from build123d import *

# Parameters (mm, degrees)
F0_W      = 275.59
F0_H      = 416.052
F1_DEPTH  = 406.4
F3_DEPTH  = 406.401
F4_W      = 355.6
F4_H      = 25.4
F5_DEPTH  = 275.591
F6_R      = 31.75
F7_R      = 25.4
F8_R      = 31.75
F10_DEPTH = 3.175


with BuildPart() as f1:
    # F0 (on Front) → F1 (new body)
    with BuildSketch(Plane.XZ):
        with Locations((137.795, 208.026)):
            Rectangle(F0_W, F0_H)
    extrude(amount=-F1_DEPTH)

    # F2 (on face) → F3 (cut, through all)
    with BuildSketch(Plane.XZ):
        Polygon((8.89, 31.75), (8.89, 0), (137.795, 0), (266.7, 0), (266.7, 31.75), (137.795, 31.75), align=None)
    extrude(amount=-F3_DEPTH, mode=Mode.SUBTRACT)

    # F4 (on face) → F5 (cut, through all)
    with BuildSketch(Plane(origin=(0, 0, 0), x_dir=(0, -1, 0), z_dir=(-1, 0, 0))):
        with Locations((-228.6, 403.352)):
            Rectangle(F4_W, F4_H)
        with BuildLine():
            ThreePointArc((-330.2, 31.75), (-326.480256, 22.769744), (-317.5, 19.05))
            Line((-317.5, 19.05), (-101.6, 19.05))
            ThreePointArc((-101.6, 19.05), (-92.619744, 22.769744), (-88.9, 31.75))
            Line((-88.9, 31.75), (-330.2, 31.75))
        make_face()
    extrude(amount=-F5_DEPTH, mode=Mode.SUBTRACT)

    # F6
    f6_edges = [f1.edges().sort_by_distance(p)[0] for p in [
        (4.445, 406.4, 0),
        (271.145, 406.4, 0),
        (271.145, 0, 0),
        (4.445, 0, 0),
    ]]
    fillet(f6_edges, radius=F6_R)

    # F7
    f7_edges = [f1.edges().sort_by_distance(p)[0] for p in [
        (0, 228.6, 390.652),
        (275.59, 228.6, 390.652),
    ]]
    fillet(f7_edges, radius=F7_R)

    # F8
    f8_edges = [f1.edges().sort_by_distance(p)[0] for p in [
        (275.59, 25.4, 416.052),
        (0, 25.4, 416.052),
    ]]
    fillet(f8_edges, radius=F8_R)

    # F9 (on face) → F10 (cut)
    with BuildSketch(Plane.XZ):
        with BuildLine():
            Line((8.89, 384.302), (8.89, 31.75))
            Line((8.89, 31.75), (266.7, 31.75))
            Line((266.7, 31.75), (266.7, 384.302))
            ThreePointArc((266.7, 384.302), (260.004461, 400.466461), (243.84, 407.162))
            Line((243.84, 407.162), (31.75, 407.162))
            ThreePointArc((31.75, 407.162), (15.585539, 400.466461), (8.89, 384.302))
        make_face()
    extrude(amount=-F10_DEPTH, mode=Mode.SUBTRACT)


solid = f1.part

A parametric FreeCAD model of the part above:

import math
import FreeCAD as App
import Part
import Sketcher
Q = App.Units.Quantity


def edges_at(feature, points):
    """Names of the edges that pass closest to the given points."""
    edges = feature.Shape.Edges
    near = lambda p: min(range(len(edges)), key=lambda i: edges[i].distToShape(Part.Vertex(*p))[0])
    return sorted({f"Edge{near(p) + 1}" for p in points})

doc = App.newDocument("Part")
body = doc.addObject("PartDesign::Body", "Body")

# Sketch on XZ plane
sketch1 = body.newObject("Sketcher::SketchObject", "Sketch")
sketch1.AttachmentSupport = (doc.getObject("XZ_Plane"), [""])
sketch1.MapMode = "FlatFace"
sketch1.addGeometry([
    Part.LineSegment(App.Vector(0, 416, 0), App.Vector(0, 0, 0)),
    Part.LineSegment(App.Vector(0, 0, 0), App.Vector(276, 0, 0)),
    Part.LineSegment(App.Vector(276, 0, 0), App.Vector(276, 416, 0)),
    Part.LineSegment(App.Vector(276, 416, 0), App.Vector(0, 416, 0)),
], False)
sketch1.addConstraint([
    Sketcher.Constraint("Coincident", 0, 2, 1, 1),
    Sketcher.Constraint("Coincident", 1, 2, 2, 1),
    Sketcher.Constraint("Coincident", 2, 2, 3, 1),
    Sketcher.Constraint("Coincident", 3, 2, 0, 1),
    Sketcher.Constraint("Vertical", 0),
    Sketcher.Constraint("Horizontal", 1),
    Sketcher.Constraint("Vertical", 2),
    Sketcher.Constraint("Horizontal", 3),
    Sketcher.Constraint("Coincident", 0, 2, -1, 1),
    Sketcher.Constraint("DistanceX", 1, 1, 1, 2, Q("10.85 in")),
    Sketcher.Constraint("DistanceY", 0, 2, 0, 1, Q("16.38 in")),
])
pad1 = body.newObject("PartDesign::Pad", "Pad")
pad1.Profile = sketch1
pad1.Length = Q("16 in")
pad1.Reversed = True

# Sketch on XZ plane
sketch2 = body.newObject("Sketcher::SketchObject", "Sketch001")
sketch2.AttachmentSupport = (doc.getObject("XZ_Plane"), [""])
sketch2.MapMode = "FlatFace"
sketch2.addGeometry([
    Part.LineSegment(App.Vector(9, 32, 0), App.Vector(9, 0, 0)),
    Part.LineSegment(App.Vector(9, 0, 0), App.Vector(267, 0, 0)),
    Part.LineSegment(App.Vector(267, 0, 0), App.Vector(267, 32, 0)),
    Part.LineSegment(App.Vector(267, 32, 0), App.Vector(9, 32, 0)),
], False)
sketch2.addConstraint([
    Sketcher.Constraint("Coincident", 0, 2, 1, 1),
    Sketcher.Constraint("Coincident", 1, 2, 2, 1),
    Sketcher.Constraint("Coincident", 2, 2, 3, 1),
    Sketcher.Constraint("Coincident", 3, 2, 0, 1),
    Sketcher.Constraint("Vertical", 0),
    Sketcher.Constraint("Horizontal", 1),
    Sketcher.Constraint("Vertical", 2),
    Sketcher.Constraint("Horizontal", 3),
    Sketcher.Constraint("PointOnObject", 0, 2, -1),
    Sketcher.Constraint("DistanceX", 1, 1, 1, 2, Q("10.15 in")),
    Sketcher.Constraint("DistanceY", 0, 2, 0, 1, Q("1.25 in")),
    Sketcher.Constraint("DistanceX", -1, 1, 1, 2, Q("10.5 in")),
])
pocket1 = body.newObject("PartDesign::Pocket", "Pocket")
pocket1.Profile = sketch2
pocket1.Type = "ThroughAll"

# Sketch on YZ plane
sketch3 = body.newObject("Sketcher::SketchObject", "Sketch002")
sketch3.AttachmentSupport = (doc.getObject("YZ_Plane"), [""])
sketch3.MapMode = "FlatFace"
sketch3.addGeometry([
    Part.LineSegment(App.Vector(406, 416, 0), App.Vector(406, 391, 0)),  # 0
    Part.LineSegment(App.Vector(406, 391, 0), App.Vector(51, 391, 0)),  # 1
    Part.LineSegment(App.Vector(51, 391, 0), App.Vector(51, 416, 0)),  # 2
    Part.LineSegment(App.Vector(51, 416, 0), App.Vector(406, 416, 0)),  # 3
    Part.ArcOfCircle(Part.Circle(App.Vector(317, 32, 0), App.Vector(0, 0, 1), 13), math.radians(-90), math.radians(0)),  # 4
    Part.LineSegment(App.Vector(318, 19, 0), App.Vector(102, 19, 0)),  # 5
    Part.ArcOfCircle(Part.Circle(App.Vector(102, 32, 0), App.Vector(0, 0, 1), 13), math.radians(-180), math.radians(-90)),  # 6
    Part.LineSegment(App.Vector(89, 32, 0), App.Vector(330, 32, 0)),  # 7
], False)
sketch3.addConstraint([
    Sketcher.Constraint("Coincident", 0, 2, 1, 1),
    Sketcher.Constraint("Coincident", 1, 2, 2, 1),
    Sketcher.Constraint("Coincident", 2, 2, 3, 1),
    Sketcher.Constraint("Coincident", 3, 2, 0, 1),
    Sketcher.Constraint("Tangent", 4, 1, 5, 1),
    Sketcher.Constraint("Tangent", 5, 2, 6, 2),
    Sketcher.Constraint("Coincident", 6, 1, 7, 1),
    Sketcher.Constraint("Coincident", 7, 2, 4, 2),
    Sketcher.Constraint("Vertical", 0),
    Sketcher.Constraint("Horizontal", 1),
    Sketcher.Constraint("Vertical", 2),
    Sketcher.Constraint("Horizontal", 3),
    Sketcher.Constraint("Horizontal", 5),
    Sketcher.Constraint("Horizontal", 7),
    Sketcher.Constraint("Equal", 4, 6),
    Sketcher.Constraint("Horizontal", 4, 3, 6, 1),
    Sketcher.Constraint("Radius", 4, Q("0.5 in")),
    Sketcher.Constraint("DistanceX", 1, 2, 1, 1, Q("14 in")),
    Sketcher.Constraint("DistanceY", 0, 2, 0, 1, Q("1 in")),
    Sketcher.Constraint("DistanceX", 5, 2, 5, 1, Q("8.5 in")),
    Sketcher.Constraint("DistanceX", -1, 1, 6, 3, Q("4 in")),
    Sketcher.Constraint("DistanceX", -1, 1, 0, 2, Q("16 in")),
    Sketcher.Constraint("DistanceY", -1, 1, 4, 3, Q("1.25 in")),
    Sketcher.Constraint("DistanceY", -1, 1, 0, 2, Q("15.38 in")),
])
pocket2 = body.newObject("PartDesign::Pocket", "Pocket001")
pocket2.Profile = sketch3
pocket2.Type = "ThroughAll"
pocket2.Reversed = True
doc.recompute()

fillet = body.newObject("PartDesign::Fillet", "Fillet")
fillet.Base = (pocket2, edges_at(pocket2, [
    (4.445, 406.4, 0),
    (271.145, 406.4, 0),
    (271.145, 0, 0),
    (4.445, 0, 0),
]))
fillet.Radius = Q("1.25 in")
doc.recompute()

fillet2 = body.newObject("PartDesign::Fillet", "Fillet001")
fillet2.Base = (fillet, edges_at(fillet, [(0, 228.6, 390.652), (275.59, 228.6, 390.652)]))
fillet2.Radius = Q("1 in")
doc.recompute()

fillet3 = body.newObject("PartDesign::Fillet", "Fillet002")
fillet3.Base = (fillet2, edges_at(fillet2, [(275.59, 25.4, 416.052), (0, 25.4, 416.052)]))
fillet3.Radius = Q("1.25 in")

# Sketch on XZ plane
sketch4 = body.newObject("Sketcher::SketchObject", "Sketch003")
sketch4.AttachmentSupport = (doc.getObject("XZ_Plane"), [""])
sketch4.MapMode = "FlatFace"
sketch4.addGeometry([
    Part.LineSegment(App.Vector(9, 384, 0), App.Vector(9, 32, 0)),  # 0
    Part.LineSegment(App.Vector(9, 32, 0), App.Vector(267, 32, 0)),  # 1
    Part.LineSegment(App.Vector(267, 32, 0), App.Vector(267, 384, 0)),  # 2
    Part.ArcOfCircle(Part.Circle(App.Vector(244, 384, 0), App.Vector(0, 0, 1), 23), math.radians(0), math.radians(90)),  # 3
    Part.LineSegment(App.Vector(244, 407, 0), App.Vector(32, 407, 0)),  # 4
    Part.ArcOfCircle(Part.Circle(App.Vector(32, 384, 0), App.Vector(0, 0, 1), 23), math.radians(90), math.radians(180)),  # 5
], False)
sketch4.addConstraint([
    Sketcher.Constraint("Coincident", 0, 2, 1, 1),
    Sketcher.Constraint("Coincident", 1, 2, 2, 1),
    Sketcher.Constraint("Tangent", 2, 2, 3, 1),
    Sketcher.Constraint("Tangent", 3, 2, 4, 1),
    Sketcher.Constraint("Tangent", 4, 2, 5, 1),
    Sketcher.Constraint("Tangent", 5, 2, 0, 1),
    Sketcher.Constraint("Vertical", 0),
    Sketcher.Constraint("Horizontal", 1),
    Sketcher.Constraint("Vertical", 2),
    Sketcher.Constraint("Horizontal", 4),
    Sketcher.Constraint("Equal", 3, 5),
    Sketcher.Constraint("Radius", 3, Q("0.9 in")),
    Sketcher.Constraint("DistanceX", 1, 1, 1, 2, Q("10.15 in")),
    Sketcher.Constraint("DistanceY", 0, 2, 0, 1, Q("13.88 in")),
    Sketcher.Constraint("DistanceX", -1, 1, 3, 3, Q("9.6 in")),
    Sketcher.Constraint("DistanceY", -1, 1, 3, 3, Q("15.13 in")),
])
pocket3 = body.newObject("PartDesign::Pocket", "Pocket002")
pocket3.Profile = sketch4
pocket3.Length = Q("0.125 in")

doc.recompute()
